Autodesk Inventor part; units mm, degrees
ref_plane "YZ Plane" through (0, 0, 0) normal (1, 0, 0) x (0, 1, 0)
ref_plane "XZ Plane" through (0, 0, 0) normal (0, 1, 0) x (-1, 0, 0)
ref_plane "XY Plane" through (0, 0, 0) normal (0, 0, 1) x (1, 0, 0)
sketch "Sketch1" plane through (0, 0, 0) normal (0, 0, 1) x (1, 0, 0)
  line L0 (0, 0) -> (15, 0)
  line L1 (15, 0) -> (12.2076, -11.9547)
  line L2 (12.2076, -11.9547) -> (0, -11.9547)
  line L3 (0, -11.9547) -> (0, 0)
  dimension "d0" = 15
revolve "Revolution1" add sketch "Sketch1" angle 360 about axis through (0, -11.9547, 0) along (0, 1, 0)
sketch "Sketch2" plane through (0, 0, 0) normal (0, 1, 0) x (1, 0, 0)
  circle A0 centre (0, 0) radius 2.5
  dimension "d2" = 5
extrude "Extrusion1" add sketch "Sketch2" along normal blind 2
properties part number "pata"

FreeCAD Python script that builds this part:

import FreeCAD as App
import Part
import Sketcher
Q = App.Units.Quantity

doc = App.newDocument("Part")
body = doc.addObject("PartDesign::Body", "Body")

# Sketch on XY plane
sketch1 = body.newObject("Sketcher::SketchObject", "Sketch")
sketch1.AttachmentSupport = (doc.getObject("XY_Plane"), [""])
sketch1.MapMode = "FlatFace"
sketch1.addGeometry(Part.LineSegment(App.Vector(15, 0, 0), App.Vector(0, 0, 0)), False)
sketch1.addGeometry(Part.LineSegment(App.Vector(0, 0, 0), App.Vector(0, -12, 0)), False)
sketch1.addGeometry(Part.LineSegment(App.Vector(0, -12, 0), App.Vector(12, -12, 0)), False)
sketch1.addGeometry(Part.LineSegment(App.Vector(12, -12, 0), App.Vector(15, 0, 0)), False)
sketch1.addConstraint(Sketcher.Constraint("Coincident", 0, 2, 1, 1))
sketch1.addConstraint(Sketcher.Constraint("Coincident", 1, 2, 2, 1))
sketch1.addConstraint(Sketcher.Constraint("Coincident", 2, 2, 3, 1))
sketch1.addConstraint(Sketcher.Constraint("Coincident", 3, 2, 0, 1))
sketch1.addConstraint(Sketcher.Constraint("Horizontal", 0))
sketch1.addConstraint(Sketcher.Constraint("Vertical", 1))
sketch1.addConstraint(Sketcher.Constraint("Horizontal", 2))
sketch1.addConstraint(Sketcher.Constraint("Coincident", 0, 2, -1, 1))
sketch1.addConstraint(Sketcher.Constraint("DistanceX", 0, 2, 0, 1, Q("15 mm")))
sketch1.addConstraint(Sketcher.Constraint("DistanceX", 2, 1, 2, 2, Q("12.2076 mm")))
sketch1.addConstraint(Sketcher.Constraint("DistanceY", 1, 2, 1, 1, Q("11.9547 mm")))
revolution = body.newObject("PartDesign::Revolution", "Revolution")
revolution.Profile = sketch1
revolution.ReferenceAxis = (sketch1, ["V_Axis"])
revolution.Angle = 360

# Sketch on XZ plane
sketch2 = body.newObject("Sketcher::SketchObject", "Sketch001")
sketch2.AttachmentSupport = (doc.getObject("XZ_Plane"), [""])
sketch2.MapMode = "FlatFace"
sketch2.addGeometry(Part.Circle(App.Vector(0, 0, 0), App.Vector(0, 0, 1), 2.5), False)
sketch2.addConstraint(Sketcher.Constraint("Coincident", 0, 3, -1, 1))
sketch2.addConstraint(Sketcher.Constraint("Diameter", 0, Q("5 mm")))
pad1 = body.newObject("PartDesign::Pad", "Pad")
pad1.Profile = sketch2
pad1.Length = 2
pad1.Reversed = True

doc.recompute()
